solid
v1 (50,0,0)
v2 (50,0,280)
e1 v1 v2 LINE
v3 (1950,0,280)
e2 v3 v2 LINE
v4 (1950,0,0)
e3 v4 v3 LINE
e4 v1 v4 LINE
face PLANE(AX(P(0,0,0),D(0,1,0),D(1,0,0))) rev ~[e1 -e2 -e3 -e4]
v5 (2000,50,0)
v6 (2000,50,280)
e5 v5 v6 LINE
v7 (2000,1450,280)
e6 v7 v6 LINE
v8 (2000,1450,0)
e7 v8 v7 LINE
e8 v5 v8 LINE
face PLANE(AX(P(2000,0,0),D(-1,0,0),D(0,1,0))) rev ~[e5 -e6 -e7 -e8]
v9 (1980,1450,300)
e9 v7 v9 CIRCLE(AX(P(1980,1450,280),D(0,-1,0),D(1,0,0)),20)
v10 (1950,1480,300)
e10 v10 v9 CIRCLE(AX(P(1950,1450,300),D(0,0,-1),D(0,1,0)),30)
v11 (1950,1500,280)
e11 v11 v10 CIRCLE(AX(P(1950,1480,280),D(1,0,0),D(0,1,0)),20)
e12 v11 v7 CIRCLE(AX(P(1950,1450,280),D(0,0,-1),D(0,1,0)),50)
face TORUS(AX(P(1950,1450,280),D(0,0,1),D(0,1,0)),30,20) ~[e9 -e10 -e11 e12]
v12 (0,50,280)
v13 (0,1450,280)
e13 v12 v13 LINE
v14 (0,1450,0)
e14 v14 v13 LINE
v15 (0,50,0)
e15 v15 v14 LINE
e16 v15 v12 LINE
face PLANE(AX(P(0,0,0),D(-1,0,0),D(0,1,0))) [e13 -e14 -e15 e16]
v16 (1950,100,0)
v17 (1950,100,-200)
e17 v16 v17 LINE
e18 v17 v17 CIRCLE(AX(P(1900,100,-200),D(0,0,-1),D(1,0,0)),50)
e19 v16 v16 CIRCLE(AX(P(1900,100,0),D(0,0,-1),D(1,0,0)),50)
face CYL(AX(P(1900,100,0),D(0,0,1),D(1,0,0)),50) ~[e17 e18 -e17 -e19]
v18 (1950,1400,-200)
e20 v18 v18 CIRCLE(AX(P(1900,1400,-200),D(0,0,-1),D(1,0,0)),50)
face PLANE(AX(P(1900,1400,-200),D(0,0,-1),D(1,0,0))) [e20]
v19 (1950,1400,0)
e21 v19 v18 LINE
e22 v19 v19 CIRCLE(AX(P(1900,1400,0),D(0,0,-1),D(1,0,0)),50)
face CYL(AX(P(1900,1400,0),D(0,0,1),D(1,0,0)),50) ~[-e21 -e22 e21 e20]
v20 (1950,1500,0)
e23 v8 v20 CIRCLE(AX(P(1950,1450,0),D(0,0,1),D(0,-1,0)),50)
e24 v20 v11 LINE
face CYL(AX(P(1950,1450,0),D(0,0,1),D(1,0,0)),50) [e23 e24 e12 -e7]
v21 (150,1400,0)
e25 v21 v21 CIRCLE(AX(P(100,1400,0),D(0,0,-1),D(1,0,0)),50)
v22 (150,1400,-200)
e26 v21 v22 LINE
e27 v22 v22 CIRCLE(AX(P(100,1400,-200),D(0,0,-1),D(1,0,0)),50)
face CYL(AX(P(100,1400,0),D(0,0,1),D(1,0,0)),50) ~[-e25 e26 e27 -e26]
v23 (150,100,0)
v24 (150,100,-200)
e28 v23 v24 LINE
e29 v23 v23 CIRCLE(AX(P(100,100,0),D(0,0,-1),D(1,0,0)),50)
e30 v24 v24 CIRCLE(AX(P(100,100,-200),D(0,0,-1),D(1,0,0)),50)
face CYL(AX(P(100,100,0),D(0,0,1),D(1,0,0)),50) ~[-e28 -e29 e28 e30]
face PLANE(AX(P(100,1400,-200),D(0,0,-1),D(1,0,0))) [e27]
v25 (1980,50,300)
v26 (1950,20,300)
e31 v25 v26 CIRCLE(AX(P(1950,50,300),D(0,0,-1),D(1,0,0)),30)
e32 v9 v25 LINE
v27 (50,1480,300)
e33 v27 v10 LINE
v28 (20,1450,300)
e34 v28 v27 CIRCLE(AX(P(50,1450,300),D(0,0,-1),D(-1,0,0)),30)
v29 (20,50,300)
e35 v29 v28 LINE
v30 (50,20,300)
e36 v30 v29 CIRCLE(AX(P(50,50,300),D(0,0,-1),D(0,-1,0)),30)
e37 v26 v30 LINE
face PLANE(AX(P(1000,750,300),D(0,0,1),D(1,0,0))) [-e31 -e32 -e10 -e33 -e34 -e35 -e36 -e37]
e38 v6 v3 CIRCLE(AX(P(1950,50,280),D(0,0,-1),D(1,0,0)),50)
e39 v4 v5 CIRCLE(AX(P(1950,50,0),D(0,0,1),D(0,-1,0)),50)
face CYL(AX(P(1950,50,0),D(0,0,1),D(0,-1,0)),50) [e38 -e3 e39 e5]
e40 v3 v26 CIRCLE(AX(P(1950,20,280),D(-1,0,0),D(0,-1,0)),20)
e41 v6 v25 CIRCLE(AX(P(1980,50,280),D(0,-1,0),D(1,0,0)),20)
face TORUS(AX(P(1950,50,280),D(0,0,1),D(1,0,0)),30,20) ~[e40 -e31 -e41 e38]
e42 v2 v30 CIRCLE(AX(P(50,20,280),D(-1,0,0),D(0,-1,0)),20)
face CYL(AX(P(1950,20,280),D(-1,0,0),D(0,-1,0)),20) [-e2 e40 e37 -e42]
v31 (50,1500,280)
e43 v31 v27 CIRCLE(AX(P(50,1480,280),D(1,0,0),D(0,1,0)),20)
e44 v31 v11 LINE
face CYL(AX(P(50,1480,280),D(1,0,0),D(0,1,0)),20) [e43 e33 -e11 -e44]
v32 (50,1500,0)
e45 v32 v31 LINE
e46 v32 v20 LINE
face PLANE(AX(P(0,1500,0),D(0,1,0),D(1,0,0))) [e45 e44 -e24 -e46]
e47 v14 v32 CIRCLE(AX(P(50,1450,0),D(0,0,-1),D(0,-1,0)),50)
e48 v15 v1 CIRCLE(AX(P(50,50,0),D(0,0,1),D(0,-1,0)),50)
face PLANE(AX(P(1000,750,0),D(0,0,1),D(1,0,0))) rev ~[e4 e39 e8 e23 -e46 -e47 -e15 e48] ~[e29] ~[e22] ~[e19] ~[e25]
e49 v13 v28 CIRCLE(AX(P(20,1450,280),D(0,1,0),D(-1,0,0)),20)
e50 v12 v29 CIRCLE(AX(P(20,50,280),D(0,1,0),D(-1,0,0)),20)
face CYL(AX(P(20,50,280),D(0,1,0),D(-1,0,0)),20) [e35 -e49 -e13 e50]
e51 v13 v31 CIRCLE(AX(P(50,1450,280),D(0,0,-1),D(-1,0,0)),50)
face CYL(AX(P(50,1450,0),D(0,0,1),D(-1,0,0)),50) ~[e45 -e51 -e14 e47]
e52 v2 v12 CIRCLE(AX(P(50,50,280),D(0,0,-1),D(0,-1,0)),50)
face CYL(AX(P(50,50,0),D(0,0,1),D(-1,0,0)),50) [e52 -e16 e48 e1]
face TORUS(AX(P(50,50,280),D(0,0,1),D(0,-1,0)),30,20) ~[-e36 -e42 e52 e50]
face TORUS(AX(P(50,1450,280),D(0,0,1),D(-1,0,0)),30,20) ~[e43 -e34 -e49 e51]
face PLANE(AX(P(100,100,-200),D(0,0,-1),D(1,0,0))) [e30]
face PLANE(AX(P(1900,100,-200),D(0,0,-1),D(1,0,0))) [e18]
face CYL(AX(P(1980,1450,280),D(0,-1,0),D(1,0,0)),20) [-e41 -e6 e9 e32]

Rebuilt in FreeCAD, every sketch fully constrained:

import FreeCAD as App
import Part
import Sketcher
from FreeCAD import Vector


def edges_at(feature, points):
    """Names of the edges that pass closest to the given points."""
    edges = feature.Shape.Edges
    near = lambda p: min(range(len(edges)), key=lambda i: edges[i].distToShape(Part.Vertex(*p))[0])
    return sorted({f"Edge{near(p) + 1}" for p in points})

doc = App.newDocument("Part")
body = doc.addObject("PartDesign::Body", "Body")

sketch1 = body.newObject("Sketcher::SketchObject", "Sketch")
sketch1.AttachmentSupport = (doc.getObject("XY_Plane"), [""])
sketch1.MapMode = "FlatFace"
sketch1.addGeometry([
    Part.LineSegment(Vector(0, 1500, 0), Vector(0, 0, 0)),
    Part.LineSegment(Vector(0, 0, 0), Vector(2000, 0, 0)),
    Part.LineSegment(Vector(2000, 0, 0), Vector(2000, 1500, 0)),
    Part.LineSegment(Vector(2000, 1500, 0), Vector(0, 1500, 0)),
], False)
sketch1.addConstraint([
    Sketcher.Constraint("Coincident", 0, 2, 1, 1),
    Sketcher.Constraint("Coincident", 1, 2, 2, 1),
    Sketcher.Constraint("Coincident", 2, 2, 3, 1),
    Sketcher.Constraint("Coincident", 3, 2, 0, 1),
    Sketcher.Constraint("Vertical", 0),
    Sketcher.Constraint("Horizontal", 1),
    Sketcher.Constraint("Vertical", 2),
    Sketcher.Constraint("Horizontal", 3),
    Sketcher.Constraint("Coincident", 0, 2, -1, 1),
    Sketcher.Constraint("DistanceX", 1, 1, 1, 2, 2000.0),
    Sketcher.Constraint("DistanceY", 0, 2, 0, 1, 1500.0),
])
pad1 = body.newObject("PartDesign::Pad", "Pad")
pad1.Profile = sketch1
pad1.Length = 300
doc.recompute()

fillet = body.newObject("PartDesign::Fillet", "Fillet")
fillet.Base = (pad1, edges_at(pad1, [
    (2000, 0, 150),
    (2000, 1500, 150),
    (0, 0, 150),
    (0, 1500, 150),
]))
fillet.Radius = 50
doc.recompute()

fillet2 = body.newObject("PartDesign::Fillet", "Fillet001")
fillet2.Base = (fillet, edges_at(fillet, [
    (0, 750, 300),
    (14.645, 1485.355, 300),
    (14.645, 14.645, 300),
    (1000, 1500, 300),
    (1000, 0, 300),
    (1985.355, 1485.355, 300),
    (1985.355, 14.645, 300),
    (2000, 750, 300),
]))
fillet2.Radius = 20

sketch2 = body.newObject("Sketcher::SketchObject", "Sketch001")
sketch2.AttachmentSupport = (doc.getObject("XY_Plane"), [""])
sketch2.MapMode = "FlatFace"
sketch2.addGeometry([
    Part.Circle(Vector(100, 100, 0), Vector(0, 0, 1), 50),
    Part.Circle(Vector(100, 1400, 0), Vector(0, 0, 1), 50),
    Part.Circle(Vector(1900, 100, 0), Vector(0, 0, 1), 50),
    Part.Circle(Vector(1900, 1400, 0), Vector(0, 0, 1), 50),
], False)
sketch2.addConstraint([
    Sketcher.Constraint("Equal", 0, 1),
    Sketcher.Constraint("Equal", 1, 2),
    Sketcher.Constraint("Equal", 2, 3),
    Sketcher.Constraint("Horizontal", 0, 3, 2, 3),
    Sketcher.Constraint("Horizontal", 1, 3, 3, 3),
    Sketcher.Constraint("Vertical", 0, 3, 1, 3),
    Sketcher.Constraint("Vertical", 2, 3, 3, 3),
    Sketcher.Constraint("Diameter", 0, 100.0),
    Sketcher.Constraint("DistanceX", -1, 1, 0, 3, 100.0),
    Sketcher.Constraint("DistanceY", -1, 1, 0, 3, 100.0),
    Sketcher.Constraint("DistanceY", -1, 1, 1, 3, 1400.0),
    Sketcher.Constraint("DistanceX", -1, 1, 2, 3, 1900.0),
])
pad2 = body.newObject("PartDesign::Pad", "Pad001")
pad2.Profile = sketch2
pad2.Length = 200
pad2.Reversed = True

doc.recompute()
